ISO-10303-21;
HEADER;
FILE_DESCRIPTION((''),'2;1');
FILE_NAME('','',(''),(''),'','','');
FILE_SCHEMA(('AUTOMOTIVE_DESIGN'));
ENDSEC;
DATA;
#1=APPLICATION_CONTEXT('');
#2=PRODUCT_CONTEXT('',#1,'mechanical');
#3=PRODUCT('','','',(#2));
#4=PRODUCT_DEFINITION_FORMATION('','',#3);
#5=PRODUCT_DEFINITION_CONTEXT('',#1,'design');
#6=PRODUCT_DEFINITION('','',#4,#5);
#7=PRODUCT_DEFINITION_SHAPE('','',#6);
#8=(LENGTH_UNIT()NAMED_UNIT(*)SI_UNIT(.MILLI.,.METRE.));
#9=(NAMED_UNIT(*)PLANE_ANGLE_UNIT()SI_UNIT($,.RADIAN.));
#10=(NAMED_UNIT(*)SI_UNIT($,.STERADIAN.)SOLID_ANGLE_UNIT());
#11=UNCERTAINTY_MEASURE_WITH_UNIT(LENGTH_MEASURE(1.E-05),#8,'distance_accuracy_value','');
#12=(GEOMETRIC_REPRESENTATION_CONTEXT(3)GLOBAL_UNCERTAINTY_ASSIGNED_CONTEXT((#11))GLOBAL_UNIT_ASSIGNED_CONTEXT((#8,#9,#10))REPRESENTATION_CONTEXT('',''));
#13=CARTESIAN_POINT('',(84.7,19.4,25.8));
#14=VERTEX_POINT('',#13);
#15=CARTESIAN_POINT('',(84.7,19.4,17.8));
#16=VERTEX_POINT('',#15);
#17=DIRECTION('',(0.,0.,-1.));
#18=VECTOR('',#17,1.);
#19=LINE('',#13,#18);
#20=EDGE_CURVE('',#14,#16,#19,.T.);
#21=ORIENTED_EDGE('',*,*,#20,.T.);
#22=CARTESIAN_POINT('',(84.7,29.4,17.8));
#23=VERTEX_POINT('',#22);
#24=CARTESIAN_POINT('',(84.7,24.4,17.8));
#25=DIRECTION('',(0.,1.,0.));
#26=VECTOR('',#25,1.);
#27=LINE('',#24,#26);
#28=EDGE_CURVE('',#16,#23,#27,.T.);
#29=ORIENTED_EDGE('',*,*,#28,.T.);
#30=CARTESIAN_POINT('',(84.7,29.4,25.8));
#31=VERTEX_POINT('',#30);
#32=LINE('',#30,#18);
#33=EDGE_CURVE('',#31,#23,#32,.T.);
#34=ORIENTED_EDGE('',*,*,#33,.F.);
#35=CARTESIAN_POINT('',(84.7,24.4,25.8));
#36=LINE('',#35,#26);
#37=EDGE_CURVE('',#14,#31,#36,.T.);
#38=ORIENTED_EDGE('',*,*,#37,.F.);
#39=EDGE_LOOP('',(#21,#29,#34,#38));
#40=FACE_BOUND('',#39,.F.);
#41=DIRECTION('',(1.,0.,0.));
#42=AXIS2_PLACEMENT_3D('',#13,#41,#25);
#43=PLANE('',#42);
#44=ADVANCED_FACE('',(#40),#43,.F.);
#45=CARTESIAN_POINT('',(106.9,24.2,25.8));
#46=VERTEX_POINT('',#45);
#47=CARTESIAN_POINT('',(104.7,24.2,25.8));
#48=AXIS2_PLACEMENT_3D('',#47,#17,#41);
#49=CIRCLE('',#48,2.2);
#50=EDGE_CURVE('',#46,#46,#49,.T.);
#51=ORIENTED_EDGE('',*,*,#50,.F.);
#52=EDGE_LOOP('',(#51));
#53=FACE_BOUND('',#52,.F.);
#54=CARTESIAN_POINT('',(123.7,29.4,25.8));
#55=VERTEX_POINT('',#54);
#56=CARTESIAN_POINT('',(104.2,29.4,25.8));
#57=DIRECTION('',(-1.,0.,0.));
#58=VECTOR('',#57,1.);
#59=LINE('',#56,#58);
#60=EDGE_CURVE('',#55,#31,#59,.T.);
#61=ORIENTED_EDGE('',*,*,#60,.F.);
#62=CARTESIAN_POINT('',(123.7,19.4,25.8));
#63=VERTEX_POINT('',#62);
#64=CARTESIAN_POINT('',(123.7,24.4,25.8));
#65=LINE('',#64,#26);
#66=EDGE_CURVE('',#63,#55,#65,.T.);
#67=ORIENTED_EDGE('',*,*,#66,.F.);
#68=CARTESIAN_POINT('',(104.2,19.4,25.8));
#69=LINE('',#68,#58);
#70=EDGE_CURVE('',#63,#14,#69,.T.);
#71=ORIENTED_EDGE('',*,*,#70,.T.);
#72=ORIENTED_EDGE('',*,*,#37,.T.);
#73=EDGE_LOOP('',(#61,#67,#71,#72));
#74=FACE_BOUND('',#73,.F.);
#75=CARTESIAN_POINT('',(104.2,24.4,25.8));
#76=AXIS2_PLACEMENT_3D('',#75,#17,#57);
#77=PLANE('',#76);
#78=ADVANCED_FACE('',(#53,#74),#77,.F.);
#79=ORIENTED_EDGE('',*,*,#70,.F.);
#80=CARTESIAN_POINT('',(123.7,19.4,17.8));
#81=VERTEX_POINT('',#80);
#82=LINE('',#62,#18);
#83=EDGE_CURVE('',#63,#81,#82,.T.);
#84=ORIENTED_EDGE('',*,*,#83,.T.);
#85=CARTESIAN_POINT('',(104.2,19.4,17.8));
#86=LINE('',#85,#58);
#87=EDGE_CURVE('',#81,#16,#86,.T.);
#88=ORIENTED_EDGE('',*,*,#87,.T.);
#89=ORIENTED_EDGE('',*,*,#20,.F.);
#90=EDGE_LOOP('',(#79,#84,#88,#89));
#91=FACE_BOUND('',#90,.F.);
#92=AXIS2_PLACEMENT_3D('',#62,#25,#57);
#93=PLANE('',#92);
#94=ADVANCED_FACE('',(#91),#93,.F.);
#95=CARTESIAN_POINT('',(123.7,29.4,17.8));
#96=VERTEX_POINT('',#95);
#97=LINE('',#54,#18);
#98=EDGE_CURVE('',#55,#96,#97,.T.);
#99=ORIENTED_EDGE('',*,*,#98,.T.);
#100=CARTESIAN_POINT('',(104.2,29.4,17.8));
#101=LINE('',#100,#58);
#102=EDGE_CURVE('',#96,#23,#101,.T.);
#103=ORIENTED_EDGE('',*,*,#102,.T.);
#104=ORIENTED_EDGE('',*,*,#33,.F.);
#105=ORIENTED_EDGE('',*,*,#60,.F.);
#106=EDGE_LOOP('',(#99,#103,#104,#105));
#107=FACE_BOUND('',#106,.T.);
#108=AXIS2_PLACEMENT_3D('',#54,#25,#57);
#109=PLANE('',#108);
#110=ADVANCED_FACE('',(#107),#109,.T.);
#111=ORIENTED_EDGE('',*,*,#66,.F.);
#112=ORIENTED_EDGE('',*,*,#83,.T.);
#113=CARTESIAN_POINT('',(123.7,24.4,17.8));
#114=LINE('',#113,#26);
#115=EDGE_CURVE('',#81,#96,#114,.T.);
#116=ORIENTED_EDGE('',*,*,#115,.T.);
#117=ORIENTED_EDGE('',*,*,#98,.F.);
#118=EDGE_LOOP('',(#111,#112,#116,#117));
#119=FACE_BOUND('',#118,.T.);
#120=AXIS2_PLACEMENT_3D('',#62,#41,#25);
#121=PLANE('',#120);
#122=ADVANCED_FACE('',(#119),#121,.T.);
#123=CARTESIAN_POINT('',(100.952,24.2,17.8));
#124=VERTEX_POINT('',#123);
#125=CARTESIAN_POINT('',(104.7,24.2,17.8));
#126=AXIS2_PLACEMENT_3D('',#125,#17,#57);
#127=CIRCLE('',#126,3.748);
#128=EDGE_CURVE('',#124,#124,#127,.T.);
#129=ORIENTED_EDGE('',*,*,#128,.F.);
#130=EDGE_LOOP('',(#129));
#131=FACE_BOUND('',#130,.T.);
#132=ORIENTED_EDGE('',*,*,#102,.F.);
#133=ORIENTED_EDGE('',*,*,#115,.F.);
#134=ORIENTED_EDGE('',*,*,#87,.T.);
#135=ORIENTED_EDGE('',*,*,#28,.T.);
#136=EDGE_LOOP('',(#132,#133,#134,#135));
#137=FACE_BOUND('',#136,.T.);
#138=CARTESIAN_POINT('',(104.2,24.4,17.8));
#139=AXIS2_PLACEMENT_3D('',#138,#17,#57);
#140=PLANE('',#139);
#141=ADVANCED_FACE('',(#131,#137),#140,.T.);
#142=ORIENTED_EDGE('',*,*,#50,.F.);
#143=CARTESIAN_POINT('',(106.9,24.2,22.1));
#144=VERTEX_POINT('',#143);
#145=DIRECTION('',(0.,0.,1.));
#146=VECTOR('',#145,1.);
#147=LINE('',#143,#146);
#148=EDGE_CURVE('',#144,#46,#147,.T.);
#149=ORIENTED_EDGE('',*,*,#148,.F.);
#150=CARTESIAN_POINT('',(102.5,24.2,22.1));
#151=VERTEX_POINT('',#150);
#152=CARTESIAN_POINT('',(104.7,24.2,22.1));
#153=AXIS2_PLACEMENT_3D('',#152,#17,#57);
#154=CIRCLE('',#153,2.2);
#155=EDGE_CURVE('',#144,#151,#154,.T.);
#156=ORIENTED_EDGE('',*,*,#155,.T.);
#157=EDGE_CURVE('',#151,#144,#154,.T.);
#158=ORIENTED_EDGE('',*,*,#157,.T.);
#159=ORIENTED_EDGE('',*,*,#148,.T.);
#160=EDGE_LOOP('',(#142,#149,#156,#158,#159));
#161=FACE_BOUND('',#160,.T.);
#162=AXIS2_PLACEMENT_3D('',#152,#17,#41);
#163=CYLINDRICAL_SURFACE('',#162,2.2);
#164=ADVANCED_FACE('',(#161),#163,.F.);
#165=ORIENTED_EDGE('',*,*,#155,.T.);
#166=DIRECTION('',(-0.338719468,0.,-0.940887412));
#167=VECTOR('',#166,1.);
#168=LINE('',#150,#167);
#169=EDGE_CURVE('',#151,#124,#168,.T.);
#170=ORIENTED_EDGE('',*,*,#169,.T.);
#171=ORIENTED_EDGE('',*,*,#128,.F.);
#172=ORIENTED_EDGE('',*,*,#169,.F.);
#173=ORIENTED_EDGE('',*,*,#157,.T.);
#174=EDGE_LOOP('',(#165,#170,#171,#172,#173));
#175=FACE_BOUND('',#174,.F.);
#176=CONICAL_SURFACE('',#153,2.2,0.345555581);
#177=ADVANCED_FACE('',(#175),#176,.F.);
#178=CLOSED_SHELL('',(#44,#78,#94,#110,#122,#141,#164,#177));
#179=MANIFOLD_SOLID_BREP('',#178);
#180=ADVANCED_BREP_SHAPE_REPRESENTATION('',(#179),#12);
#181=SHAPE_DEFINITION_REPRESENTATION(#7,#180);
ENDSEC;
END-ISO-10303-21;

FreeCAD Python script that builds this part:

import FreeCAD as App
import Part
import Sketcher

V = App.Vector
Q = App.Units.Quantity

doc = App.newDocument("Part")
body = doc.addObject("PartDesign::Body", "Body")

# Sketch on YZ plane
sketch1 = doc.addObject("Sketcher::SketchObject", "Sketch")
body.addObject(sketch1)
sketch1.AttachmentSupport = (doc.YZ_Plane, [""])
sketch1.MapMode = "FlatFace"
sketch1.AttachmentOffset = App.Placement(V(0, 0, -24), App.Rotation())
sketch1.addGeometry(Part.Circle(V(26, -8, 0), V(0, 0, 1), 2.2), False)
sketch1.addConstraint([
    Sketcher.Constraint("Diameter", 0, Q("4.4 mm")),
    Sketcher.Constraint("DistanceX", -1, 1, 0, 3, Q("26 mm")),
    Sketcher.Constraint("DistanceY", 0, 3, -1, 1, Q("8 mm")),
])
pad1 = doc.addObject("PartDesign::Pad", "Pad")
body.addObject(pad1)
pad1.Profile = sketch1
pad1.Length = 50
body2 = doc.addObject("PartDesign::Body", "Body001")

# Sketch on XZ plane
sketch2 = doc.addObject("Sketcher::SketchObject", "Sketch001")
body2.addObject(sketch2)
sketch2.AttachmentSupport = (doc.getObject("XZ_Plane001"), [""])
sketch2.MapMode = "FlatFace"
sketch2.AttachmentOffset = App.Placement(V(0, 0, -26), App.Rotation())
sketch2.addGeometry([
    Part.LineSegment(V(-24, -8, 0), V(-24, -5.8, 0)),
    Part.LineSegment(V(-24, -5.8, 0), V(-29, -4, 0)),
    Part.LineSegment(V(-29, -4, 0), V(-29, -8, 0)),
    Part.LineSegment(V(-29, -8, 0), V(-24, -8, 0)),
], False)
sketch2.addGeometry(Part.LineSegment(V(-24, -8, 0), V(-29, -8, 0)), True)  # axis
sketch2.addConstraint([
    Sketcher.Constraint("Coincident", 0, 2, 1, 1),
    Sketcher.Constraint("Coincident", 1, 2, 2, 1),
    Sketcher.Constraint("Coincident", 2, 2, 3, 1),
    Sketcher.Constraint("Coincident", 3, 2, 0, 1),
    Sketcher.Constraint("Vertical", 0),
    Sketcher.Constraint("Vertical", 2),
    Sketcher.Constraint("Horizontal", 3),
    Sketcher.Constraint("Horizontal", 4),
    Sketcher.Constraint("Coincident", 4, 1, 3, 2),
    Sketcher.Constraint("Vertical", 1, 2, 4, 2),
    Sketcher.Constraint("DistanceX", 3, 1, 3, 2, Q("5 mm")),
    Sketcher.Constraint("DistanceY", 2, 2, 2, 1, Q("4 mm")),
    Sketcher.Constraint("DistanceY", 0, 1, 0, 2, Q("2.2 mm")),
    Sketcher.Constraint("DistanceX", 0, 2, -1, 1, Q("24 mm")),
    Sketcher.Constraint("DistanceY", 1, 2, -1, 1, Q("4 mm")),
])
revolution = doc.addObject("PartDesign::Revolution", "Revolution")
body2.addObject(revolution)
revolution.Profile = sketch2
revolution.ReferenceAxis = (sketch2, ["Axis0"])
revolution.Angle = 360
doc.recompute()

boolean = doc.addObject("PartDesign::Boolean", "Boolean")
body2.addObject(boolean)
boolean.Type = "Fuse"
boolean.addObjects([body])
body3 = doc.addObject("PartDesign::Body", "Body002")
doc.recompute()

body2.Placement = App.Placement(V(111.8, -1.7, 18.4), App.Rotation(V(0, 1, 0), 90))
boolean2 = doc.addObject("PartDesign::Boolean", "Boolean001")
body3.addObject(boolean2)
boolean2.Type = "Fuse"
boolean2.addObjects([body2])
body4 = doc.addObject("PartDesign::Body", "Body003")

# Sketch on XY plane
sketch3 = doc.addObject("Sketcher::SketchObject", "Sketch002")
body4.addObject(sketch3)
sketch3.AttachmentSupport = (doc.getObject("XY_Plane003"), [""])
sketch3.MapMode = "FlatFace"
sketch3.AttachmentOffset = App.Placement(V(0, 0, 38.7), App.Rotation())
sketch3.addGeometry([
    Part.LineSegment(V(85, 30, 0), V(85, 20, 0)),
    Part.LineSegment(V(85, 20, 0), V(124, 20, 0)),
    Part.LineSegment(V(124, 20, 0), V(124, 30, 0)),
    Part.LineSegment(V(124, 30, 0), V(85, 30, 0)),
], False)
sketch3.addConstraint([
    Sketcher.Constraint("Coincident", 0, 2, 1, 1),
    Sketcher.Constraint("Coincident", 1, 2, 2, 1),
    Sketcher.Constraint("Coincident", 2, 2, 3, 1),
    Sketcher.Constraint("Coincident", 3, 2, 0, 1),
    Sketcher.Constraint("Vertical", 0),
    Sketcher.Constraint("Horizontal", 1),
    Sketcher.Constraint("Vertical", 2),
    Sketcher.Constraint("Horizontal", 3),
    Sketcher.Constraint("DistanceX", 1, 1, 1, 2, Q("39 mm")),
    Sketcher.Constraint("DistanceY", 0, 2, 0, 1, Q("10 mm")),
    Sketcher.Constraint("DistanceX", -1, 1, 0, 2, Q("84.8 mm")),
    Sketcher.Constraint("DistanceY", -1, 1, 0, 2, Q("19.5 mm")),
])
pad2 = doc.addObject("PartDesign::Pad", "Pad001")
body4.addObject(pad2)
pad2.Profile = sketch3
pad2.Length = 8
doc.recompute()

boolean3 = doc.addObject("PartDesign::Boolean", "Boolean002")
body4.addObject(boolean3)
boolean3.Type = "Cut"
boolean3.addObjects([body3])
body5 = doc.addObject("PartDesign::Body", "Body004")
doc.recompute()

body4.Placement = App.Placement(V(208.5, -0.1, 64.5), App.Rotation(V(0, 1, 0), 180))
boolean4 = doc.addObject("PartDesign::Boolean", "Boolean003")
body5.addObject(boolean4)
boolean4.Type = "Fuse"
boolean4.addObjects([body4])

doc.recompute()
